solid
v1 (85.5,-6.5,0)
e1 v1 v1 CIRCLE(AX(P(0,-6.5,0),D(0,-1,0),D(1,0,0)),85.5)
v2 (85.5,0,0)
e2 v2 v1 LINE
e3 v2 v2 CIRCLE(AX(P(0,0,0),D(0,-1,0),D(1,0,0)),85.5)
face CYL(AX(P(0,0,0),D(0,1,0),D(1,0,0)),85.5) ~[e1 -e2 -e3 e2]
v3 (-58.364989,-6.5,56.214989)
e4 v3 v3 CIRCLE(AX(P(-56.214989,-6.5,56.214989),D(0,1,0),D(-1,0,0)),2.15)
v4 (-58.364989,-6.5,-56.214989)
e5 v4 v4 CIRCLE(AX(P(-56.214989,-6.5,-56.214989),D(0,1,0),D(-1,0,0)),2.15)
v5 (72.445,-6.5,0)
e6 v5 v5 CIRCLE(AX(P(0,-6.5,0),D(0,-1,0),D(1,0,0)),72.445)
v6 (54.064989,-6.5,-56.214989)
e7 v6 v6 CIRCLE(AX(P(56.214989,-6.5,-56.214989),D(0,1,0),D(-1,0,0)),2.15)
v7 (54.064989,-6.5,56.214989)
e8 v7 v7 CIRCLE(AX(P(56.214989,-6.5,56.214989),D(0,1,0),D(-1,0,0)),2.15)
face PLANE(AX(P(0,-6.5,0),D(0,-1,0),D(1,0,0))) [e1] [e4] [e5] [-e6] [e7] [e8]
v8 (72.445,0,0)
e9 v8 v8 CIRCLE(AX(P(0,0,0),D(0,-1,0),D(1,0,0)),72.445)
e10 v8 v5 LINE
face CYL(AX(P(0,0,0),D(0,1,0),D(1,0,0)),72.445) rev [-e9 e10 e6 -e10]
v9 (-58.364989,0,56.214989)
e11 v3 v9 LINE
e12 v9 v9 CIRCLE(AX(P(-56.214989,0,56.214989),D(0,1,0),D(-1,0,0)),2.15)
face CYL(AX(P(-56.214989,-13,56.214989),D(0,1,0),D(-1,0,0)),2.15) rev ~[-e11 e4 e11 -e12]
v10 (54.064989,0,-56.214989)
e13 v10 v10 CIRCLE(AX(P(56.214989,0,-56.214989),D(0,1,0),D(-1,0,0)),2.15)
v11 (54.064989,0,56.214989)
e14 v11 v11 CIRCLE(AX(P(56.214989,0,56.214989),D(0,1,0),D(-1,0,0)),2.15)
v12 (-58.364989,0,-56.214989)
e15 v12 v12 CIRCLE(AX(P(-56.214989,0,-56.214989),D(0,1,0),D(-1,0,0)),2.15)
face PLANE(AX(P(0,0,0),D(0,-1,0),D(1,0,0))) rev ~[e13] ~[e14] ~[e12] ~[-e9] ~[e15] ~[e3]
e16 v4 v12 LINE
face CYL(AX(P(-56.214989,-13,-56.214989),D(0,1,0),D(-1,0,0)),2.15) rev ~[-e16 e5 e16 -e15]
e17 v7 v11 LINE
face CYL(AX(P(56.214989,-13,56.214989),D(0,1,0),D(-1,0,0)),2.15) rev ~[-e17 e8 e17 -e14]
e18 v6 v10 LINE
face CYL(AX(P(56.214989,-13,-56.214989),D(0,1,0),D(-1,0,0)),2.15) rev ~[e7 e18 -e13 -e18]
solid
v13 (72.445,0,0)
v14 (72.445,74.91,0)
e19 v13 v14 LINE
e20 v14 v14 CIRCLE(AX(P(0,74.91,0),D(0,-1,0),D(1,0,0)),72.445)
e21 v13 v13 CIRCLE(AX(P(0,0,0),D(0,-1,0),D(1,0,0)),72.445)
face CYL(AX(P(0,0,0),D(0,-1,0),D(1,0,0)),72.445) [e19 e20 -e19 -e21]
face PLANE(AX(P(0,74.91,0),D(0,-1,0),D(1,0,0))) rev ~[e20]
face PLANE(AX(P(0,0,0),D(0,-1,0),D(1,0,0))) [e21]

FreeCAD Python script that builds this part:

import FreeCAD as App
import Part
import Sketcher
from FreeCAD import Vector

doc = App.newDocument("Part")
body = doc.addObject("PartDesign::Body", "Body")

sketch1 = body.newObject("Sketcher::SketchObject", "Sketch")
sketch1.AttachmentSupport = (doc.getObject("XZ_Plane"), [""])
sketch1.MapMode = "FlatFace"
sketch1.addGeometry(Part.Circle(Vector(0, 0, 0), Vector(0, 0, 1), 85.5), False)
sketch1.addGeometry(Part.Circle(Vector(0, 0, 0), Vector(0, 0, 1), 72.445), False)
sketch1.addConstraint(Sketcher.Constraint("Coincident", 0, 3, -1, 1))
sketch1.addConstraint(Sketcher.Constraint("Coincident", 1, 3, -1, 1))
sketch1.addConstraint(Sketcher.Constraint("Diameter", 0, 171.0))
sketch1.addConstraint(Sketcher.Constraint("Diameter", 1, 144.89))
pad1 = body.newObject("PartDesign::Pad", "Pad")
pad1.Profile = sketch1
pad1.Length = 6.5

sketch2 = body.newObject("Sketcher::SketchObject", "Sketch001")
sketch2.AttachmentSupport = (doc.getObject("XZ_Plane"), [""])
sketch2.MapMode = "FlatFace"
sketch2.AttachmentOffset = App.Placement(Vector(0, 0, 6.5), App.Rotation())
sketch2.addGeometry(Part.Circle(Vector(-56.214989, 56.214989, 0), Vector(0, 0, 1), 2.15), False)
sketch2.addConstraint(Sketcher.Constraint("Diameter", 0, 4.3))
sketch2.addConstraint(Sketcher.Constraint("DistanceX", 0, 3, -1, 1, 56.214989))
sketch2.addConstraint(Sketcher.Constraint("DistanceY", -1, 1, 0, 3, 56.214989))
doc.recompute()
hole = body.newObject("PartDesign::Hole", "Hole")
hole.Profile = sketch2
hole.ThreadType = "None"
hole.Diameter = 4.3
hole.DepthType = "Dimension"
hole.Depth = 6.5
hole.DrillPoint = "Flat"

sketch3 = body.newObject("Sketcher::SketchObject", "Sketch002")
sketch3.AttachmentSupport = (doc.getObject("XZ_Plane"), [""])
sketch3.MapMode = "FlatFace"
sketch3.AttachmentOffset = App.Placement(Vector(0, 0, 6.5), App.Rotation())
sketch3.addGeometry(Part.Circle(Vector(56.214989, 56.214989, 0), Vector(0, 0, 1), 2.15), False)
sketch3.addConstraint(Sketcher.Constraint("Diameter", 0, 4.3))
sketch3.addConstraint(Sketcher.Constraint("DistanceX", -1, 1, 0, 3, 56.214989))
sketch3.addConstraint(Sketcher.Constraint("DistanceY", -1, 1, 0, 3, 56.214989))
doc.recompute()
hole2 = body.newObject("PartDesign::Hole", "Hole001")
hole2.Profile = sketch3
hole2.ThreadType = "None"
hole2.Diameter = 4.3
hole2.DepthType = "Dimension"
hole2.Depth = 6.5
hole2.DrillPoint = "Flat"

sketch4 = body.newObject("Sketcher::SketchObject", "Sketch003")
sketch4.AttachmentSupport = (doc.getObject("XZ_Plane"), [""])
sketch4.MapMode = "FlatFace"
sketch4.AttachmentOffset = App.Placement(Vector(0, 0, 6.5), App.Rotation())
sketch4.addGeometry(Part.Circle(Vector(56.214989, -56.214989, 0), Vector(0, 0, 1), 2.15), False)
sketch4.addConstraint(Sketcher.Constraint("Diameter", 0, 4.3))
sketch4.addConstraint(Sketcher.Constraint("DistanceX", -1, 1, 0, 3, 56.214989))
sketch4.addConstraint(Sketcher.Constraint("DistanceY", 0, 3, -1, 1, 56.214989))
doc.recompute()
hole3 = body.newObject("PartDesign::Hole", "Hole002")
hole3.Profile = sketch4
hole3.ThreadType = "None"
hole3.Diameter = 4.3
hole3.DepthType = "Dimension"
hole3.Depth = 6.5
hole3.DrillPoint = "Flat"

sketch5 = body.newObject("Sketcher::SketchObject", "Sketch004")
sketch5.AttachmentSupport = (doc.getObject("XZ_Plane"), [""])
sketch5.MapMode = "FlatFace"
sketch5.AttachmentOffset = App.Placement(Vector(0, 0, 6.5), App.Rotation())
sketch5.addGeometry(Part.Circle(Vector(-56.214989, -56.214989, 0), Vector(0, 0, 1), 2.15), False)
sketch5.addConstraint(Sketcher.Constraint("Diameter", 0, 4.3))
sketch5.addConstraint(Sketcher.Constraint("DistanceX", 0, 3, -1, 1, 56.214989))
sketch5.addConstraint(Sketcher.Constraint("DistanceY", 0, 3, -1, 1, 56.214989))
doc.recompute()
hole4 = body.newObject("PartDesign::Hole", "Hole003")
hole4.Profile = sketch5
hole4.ThreadType = "None"
hole4.Diameter = 4.3
hole4.DepthType = "Dimension"
hole4.Depth = 6.5
hole4.DrillPoint = "Flat"
body2 = doc.addObject("PartDesign::Body", "Body001")

sketch6 = body2.newObject("Sketcher::SketchObject", "Sketch005")
sketch6.AttachmentSupport = (doc.getObject("XZ_Plane001"), [""])
sketch6.MapMode = "FlatFace"
sketch6.addGeometry(Part.Circle(Vector(0, 0, 0), Vector(0, 0, 1), 72.445), False)
sketch6.addConstraint(Sketcher.Constraint("Coincident", 0, 3, -1, 1))
sketch6.addConstraint(Sketcher.Constraint("Diameter", 0, 144.89))
pad2 = body2.newObject("PartDesign::Pad", "Pad001")
pad2.Profile = sketch6
pad2.Length = 74.91
pad2.Reversed = True

doc.recompute()
